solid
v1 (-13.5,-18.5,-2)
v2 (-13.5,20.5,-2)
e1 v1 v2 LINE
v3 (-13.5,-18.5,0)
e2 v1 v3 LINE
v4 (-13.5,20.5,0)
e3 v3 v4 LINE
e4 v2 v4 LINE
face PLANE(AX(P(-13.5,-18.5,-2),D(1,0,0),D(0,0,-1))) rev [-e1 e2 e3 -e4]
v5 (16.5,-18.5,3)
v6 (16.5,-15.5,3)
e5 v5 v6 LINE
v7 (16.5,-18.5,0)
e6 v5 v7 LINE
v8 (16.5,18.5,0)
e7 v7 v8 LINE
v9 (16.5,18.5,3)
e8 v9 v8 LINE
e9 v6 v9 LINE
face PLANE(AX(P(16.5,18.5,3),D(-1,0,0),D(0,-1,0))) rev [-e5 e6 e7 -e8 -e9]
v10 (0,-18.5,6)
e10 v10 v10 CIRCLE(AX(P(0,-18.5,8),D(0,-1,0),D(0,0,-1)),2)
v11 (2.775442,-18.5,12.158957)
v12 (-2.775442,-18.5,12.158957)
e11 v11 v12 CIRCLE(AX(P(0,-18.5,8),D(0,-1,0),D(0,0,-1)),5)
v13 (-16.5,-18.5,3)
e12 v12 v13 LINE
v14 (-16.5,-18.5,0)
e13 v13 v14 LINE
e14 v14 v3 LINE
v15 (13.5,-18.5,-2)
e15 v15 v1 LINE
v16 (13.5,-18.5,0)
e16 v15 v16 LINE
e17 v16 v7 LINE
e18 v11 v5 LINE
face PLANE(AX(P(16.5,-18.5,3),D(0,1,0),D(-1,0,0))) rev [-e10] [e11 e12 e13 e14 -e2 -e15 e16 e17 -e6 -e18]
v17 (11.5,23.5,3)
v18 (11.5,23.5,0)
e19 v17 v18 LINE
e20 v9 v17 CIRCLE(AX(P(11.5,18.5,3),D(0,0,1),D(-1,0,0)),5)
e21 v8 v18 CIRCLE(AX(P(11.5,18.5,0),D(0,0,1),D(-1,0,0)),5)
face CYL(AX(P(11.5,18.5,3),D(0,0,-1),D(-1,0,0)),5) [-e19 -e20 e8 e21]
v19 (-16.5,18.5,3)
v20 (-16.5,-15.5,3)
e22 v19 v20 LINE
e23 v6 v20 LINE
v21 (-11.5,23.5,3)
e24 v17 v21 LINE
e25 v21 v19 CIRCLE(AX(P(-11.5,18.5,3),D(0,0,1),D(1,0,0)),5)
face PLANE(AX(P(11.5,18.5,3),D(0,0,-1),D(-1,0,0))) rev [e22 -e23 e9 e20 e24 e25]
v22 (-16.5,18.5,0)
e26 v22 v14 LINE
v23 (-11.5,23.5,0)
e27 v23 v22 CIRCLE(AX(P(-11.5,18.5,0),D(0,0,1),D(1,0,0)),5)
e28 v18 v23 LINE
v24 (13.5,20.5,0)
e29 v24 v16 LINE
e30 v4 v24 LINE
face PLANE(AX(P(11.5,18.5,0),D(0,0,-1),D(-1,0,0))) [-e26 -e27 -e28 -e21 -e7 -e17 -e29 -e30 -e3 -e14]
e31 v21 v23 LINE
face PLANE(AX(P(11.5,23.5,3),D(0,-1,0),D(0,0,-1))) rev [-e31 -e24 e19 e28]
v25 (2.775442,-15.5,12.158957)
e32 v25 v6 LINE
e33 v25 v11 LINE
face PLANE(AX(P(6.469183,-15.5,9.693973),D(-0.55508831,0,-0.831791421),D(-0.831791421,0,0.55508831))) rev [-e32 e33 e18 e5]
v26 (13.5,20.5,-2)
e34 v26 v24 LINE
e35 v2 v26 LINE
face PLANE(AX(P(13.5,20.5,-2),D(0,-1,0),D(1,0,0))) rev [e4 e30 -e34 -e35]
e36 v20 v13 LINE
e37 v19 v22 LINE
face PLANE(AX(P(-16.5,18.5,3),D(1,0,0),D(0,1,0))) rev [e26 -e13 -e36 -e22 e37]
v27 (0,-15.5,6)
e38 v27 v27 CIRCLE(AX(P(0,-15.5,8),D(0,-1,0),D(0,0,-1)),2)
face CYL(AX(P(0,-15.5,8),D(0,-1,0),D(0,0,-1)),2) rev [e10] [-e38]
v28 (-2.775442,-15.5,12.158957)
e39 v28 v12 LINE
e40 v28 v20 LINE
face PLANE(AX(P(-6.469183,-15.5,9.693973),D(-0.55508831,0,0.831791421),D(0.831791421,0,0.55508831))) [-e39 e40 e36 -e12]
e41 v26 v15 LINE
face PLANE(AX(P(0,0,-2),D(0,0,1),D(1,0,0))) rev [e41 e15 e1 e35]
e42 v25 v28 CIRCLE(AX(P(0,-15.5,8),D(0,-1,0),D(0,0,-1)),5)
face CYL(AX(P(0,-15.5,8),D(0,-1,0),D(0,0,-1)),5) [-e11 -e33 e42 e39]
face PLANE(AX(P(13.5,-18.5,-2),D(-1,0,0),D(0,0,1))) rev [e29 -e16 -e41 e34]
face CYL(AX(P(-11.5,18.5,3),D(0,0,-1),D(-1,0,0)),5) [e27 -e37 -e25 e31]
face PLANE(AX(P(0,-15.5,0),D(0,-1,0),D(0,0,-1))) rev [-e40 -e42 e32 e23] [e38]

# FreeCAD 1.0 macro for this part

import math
import FreeCAD as App
import Part
import Sketcher

V = App.Vector
Q = App.Units.Quantity

doc = App.newDocument("Part")
body = doc.addObject("PartDesign::Body", "Body")

# Sketch on XY plane
sketch1 = body.newObject("Sketcher::SketchObject", "Sketch")
sketch1.AttachmentSupport = (doc.getObject("XY_Plane"), [""])
sketch1.MapMode = "FlatFace"
sketch1.addGeometry(Part.LineSegment(V(11.5, 23.5, 0), V(-11.5, 23.5, 0)), False)
sketch1.addGeometry(Part.ArcOfCircle(Part.Circle(V(-11.5, 18.5, 0), V(0, 0, 1), 5), math.radians(90), math.radians(180)), False)
sketch1.addGeometry(Part.LineSegment(V(-16.5, 18.5, 0), V(-16.5, -18.5, 0)), False)
sketch1.addGeometry(Part.LineSegment(V(-16.5, -18.5, 0), V(16.5, -18.5, 0)), False)
sketch1.addGeometry(Part.LineSegment(V(16.5, -18.5, 0), V(16.5, 18.5, 0)), False)
sketch1.addGeometry(Part.ArcOfCircle(Part.Circle(V(11.5, 18.5, 0), V(0, 0, 1), 5), math.radians(0), math.radians(90)), False)
sketch1.addConstraint(Sketcher.Constraint("Tangent", 0, 2, 1, 1))
sketch1.addConstraint(Sketcher.Constraint("Tangent", 1, 2, 2, 1))
sketch1.addConstraint(Sketcher.Constraint("Coincident", 2, 2, 3, 1))
sketch1.addConstraint(Sketcher.Constraint("Coincident", 3, 2, 4, 1))
sketch1.addConstraint(Sketcher.Constraint("Tangent", 4, 2, 5, 1))
sketch1.addConstraint(Sketcher.Constraint("Tangent", 5, 2, 0, 1))
sketch1.addConstraint(Sketcher.Constraint("Horizontal", 0))
sketch1.addConstraint(Sketcher.Constraint("Vertical", 2))
sketch1.addConstraint(Sketcher.Constraint("Horizontal", 3))
sketch1.addConstraint(Sketcher.Constraint("Vertical", 4))
sketch1.addConstraint(Sketcher.Constraint("Equal", 1, 5))
sketch1.addConstraint(Sketcher.Constraint("Symmetric", 1, 2, 3, 2, -1, 1))
sketch1.addConstraint(Sketcher.Constraint("Radius", 1, Q("5 mm")))
sketch1.addConstraint(Sketcher.Constraint("DistanceX", 0, 2, 0, 1, Q("23 mm")))
sketch1.addConstraint(Sketcher.Constraint("DistanceY", 2, 2, 2, 1, Q("37 mm")))
pad1 = body.newObject("PartDesign::Pad", "Pad")
pad1.Profile = sketch1
pad1.Length = 3

# Sketch on XZ plane
sketch2 = body.newObject("Sketcher::SketchObject", "Sketch001")
sketch2.AttachmentSupport = (doc.getObject("XZ_Plane"), [""])
sketch2.MapMode = "FlatFace"
sketch2.AttachmentOffset = App.Placement(V(0, 0, 18.5), App.Rotation())
sketch2.addGeometry(Part.LineSegment(V(-2.775442, 12.158957, 0), V(-16.5, 3, 0)), False)
sketch2.addGeometry(Part.LineSegment(V(-16.5, 3, 0), V(16.5, 3, 0)), False)
sketch2.addGeometry(Part.LineSegment(V(16.5, 3, 0), V(2.775442, 12.158957, 0)), False)
sketch2.addGeometry(Part.ArcOfCircle(Part.Circle(V(0, 8, 0), V(0, 0, 1), 5), math.radians(56.283202), math.radians(123.716798)), False)
sketch2.addGeometry(Part.Circle(V(0, 8, 0), V(0, 0, 1), 2), False)
sketch2.addConstraint(Sketcher.Constraint("Coincident", 0, 2, 1, 1))
sketch2.addConstraint(Sketcher.Constraint("Coincident", 1, 2, 2, 1))
sketch2.addConstraint(Sketcher.Constraint("Tangent", 2, 2, 3, 1))
sketch2.addConstraint(Sketcher.Constraint("Tangent", 3, 2, 0, 1))
sketch2.addConstraint(Sketcher.Constraint("Horizontal", 1))
sketch2.addConstraint(Sketcher.Constraint("Coincident", 4, 3, 3, 3))
sketch2.addConstraint(Sketcher.Constraint("Symmetric", 2, 2, 3, 2, -2))
sketch2.addConstraint(Sketcher.Constraint("Diameter", 4, Q("4 mm")))
sketch2.addConstraint(Sketcher.Constraint("Radius", 3, Q("5 mm")))
sketch2.addConstraint(Sketcher.Constraint("DistanceX", 1, 1, 1, 2, Q("33 mm")))
sketch2.addConstraint(Sketcher.Constraint("DistanceY", -1, 1, 3, 3, Q("8 mm")))
sketch2.addConstraint(Sketcher.Constraint("DistanceY", -1, 1, 0, 2, Q("3 mm")))
pad2 = body.newObject("PartDesign::Pad", "Pad001")
pad2.Profile = sketch2
pad2.Length = 3
pad2.Reversed = True

# Sketch on XY plane
sketch3 = body.newObject("Sketcher::SketchObject", "Sketch002")
sketch3.AttachmentSupport = (doc.getObject("XY_Plane"), [""])
sketch3.MapMode = "FlatFace"
sketch3.addGeometry(Part.LineSegment(V(13.5, 20.5, 0), V(13.5, -18.5, 0)), False)
sketch3.addGeometry(Part.LineSegment(V(13.5, -18.5, 0), V(-13.5, -18.5, 0)), False)
sketch3.addGeometry(Part.LineSegment(V(-13.5, -18.5, 0), V(-13.5, 20.5, 0)), False)
sketch3.addGeometry(Part.LineSegment(V(-13.5, 20.5, 0), V(13.5, 20.5, 0)), False)
sketch3.addConstraint(Sketcher.Constraint("Coincident", 0, 2, 1, 1))
sketch3.addConstraint(Sketcher.Constraint("Coincident", 1, 2, 2, 1))
sketch3.addConstraint(Sketcher.Constraint("Coincident", 2, 2, 3, 1))
sketch3.addConstraint(Sketcher.Constraint("Coincident", 3, 2, 0, 1))
sketch3.addConstraint(Sketcher.Constraint("Vertical", 0))
sketch3.addConstraint(Sketcher.Constraint("Horizontal", 1))
sketch3.addConstraint(Sketcher.Constraint("Vertical", 2))
sketch3.addConstraint(Sketcher.Constraint("Horizontal", 3))
sketch3.addConstraint(Sketcher.Constraint("DistanceX", 1, 2, 1, 1, Q("27 mm")))
sketch3.addConstraint(Sketcher.Constraint("DistanceY", 0, 2, 0, 1, Q("39 mm")))
sketch3.addConstraint(Sketcher.Constraint("DistanceX", -1, 1, 0, 2, Q("13.5 mm")))
sketch3.addConstraint(Sketcher.Constraint("DistanceY", 0, 2, -1, 1, Q("18.5 mm")))
pad3 = body.newObject("PartDesign::Pad", "Pad002")
pad3.Profile = sketch3
pad3.Length = 2
pad3.Reversed = True

doc.recompute()
